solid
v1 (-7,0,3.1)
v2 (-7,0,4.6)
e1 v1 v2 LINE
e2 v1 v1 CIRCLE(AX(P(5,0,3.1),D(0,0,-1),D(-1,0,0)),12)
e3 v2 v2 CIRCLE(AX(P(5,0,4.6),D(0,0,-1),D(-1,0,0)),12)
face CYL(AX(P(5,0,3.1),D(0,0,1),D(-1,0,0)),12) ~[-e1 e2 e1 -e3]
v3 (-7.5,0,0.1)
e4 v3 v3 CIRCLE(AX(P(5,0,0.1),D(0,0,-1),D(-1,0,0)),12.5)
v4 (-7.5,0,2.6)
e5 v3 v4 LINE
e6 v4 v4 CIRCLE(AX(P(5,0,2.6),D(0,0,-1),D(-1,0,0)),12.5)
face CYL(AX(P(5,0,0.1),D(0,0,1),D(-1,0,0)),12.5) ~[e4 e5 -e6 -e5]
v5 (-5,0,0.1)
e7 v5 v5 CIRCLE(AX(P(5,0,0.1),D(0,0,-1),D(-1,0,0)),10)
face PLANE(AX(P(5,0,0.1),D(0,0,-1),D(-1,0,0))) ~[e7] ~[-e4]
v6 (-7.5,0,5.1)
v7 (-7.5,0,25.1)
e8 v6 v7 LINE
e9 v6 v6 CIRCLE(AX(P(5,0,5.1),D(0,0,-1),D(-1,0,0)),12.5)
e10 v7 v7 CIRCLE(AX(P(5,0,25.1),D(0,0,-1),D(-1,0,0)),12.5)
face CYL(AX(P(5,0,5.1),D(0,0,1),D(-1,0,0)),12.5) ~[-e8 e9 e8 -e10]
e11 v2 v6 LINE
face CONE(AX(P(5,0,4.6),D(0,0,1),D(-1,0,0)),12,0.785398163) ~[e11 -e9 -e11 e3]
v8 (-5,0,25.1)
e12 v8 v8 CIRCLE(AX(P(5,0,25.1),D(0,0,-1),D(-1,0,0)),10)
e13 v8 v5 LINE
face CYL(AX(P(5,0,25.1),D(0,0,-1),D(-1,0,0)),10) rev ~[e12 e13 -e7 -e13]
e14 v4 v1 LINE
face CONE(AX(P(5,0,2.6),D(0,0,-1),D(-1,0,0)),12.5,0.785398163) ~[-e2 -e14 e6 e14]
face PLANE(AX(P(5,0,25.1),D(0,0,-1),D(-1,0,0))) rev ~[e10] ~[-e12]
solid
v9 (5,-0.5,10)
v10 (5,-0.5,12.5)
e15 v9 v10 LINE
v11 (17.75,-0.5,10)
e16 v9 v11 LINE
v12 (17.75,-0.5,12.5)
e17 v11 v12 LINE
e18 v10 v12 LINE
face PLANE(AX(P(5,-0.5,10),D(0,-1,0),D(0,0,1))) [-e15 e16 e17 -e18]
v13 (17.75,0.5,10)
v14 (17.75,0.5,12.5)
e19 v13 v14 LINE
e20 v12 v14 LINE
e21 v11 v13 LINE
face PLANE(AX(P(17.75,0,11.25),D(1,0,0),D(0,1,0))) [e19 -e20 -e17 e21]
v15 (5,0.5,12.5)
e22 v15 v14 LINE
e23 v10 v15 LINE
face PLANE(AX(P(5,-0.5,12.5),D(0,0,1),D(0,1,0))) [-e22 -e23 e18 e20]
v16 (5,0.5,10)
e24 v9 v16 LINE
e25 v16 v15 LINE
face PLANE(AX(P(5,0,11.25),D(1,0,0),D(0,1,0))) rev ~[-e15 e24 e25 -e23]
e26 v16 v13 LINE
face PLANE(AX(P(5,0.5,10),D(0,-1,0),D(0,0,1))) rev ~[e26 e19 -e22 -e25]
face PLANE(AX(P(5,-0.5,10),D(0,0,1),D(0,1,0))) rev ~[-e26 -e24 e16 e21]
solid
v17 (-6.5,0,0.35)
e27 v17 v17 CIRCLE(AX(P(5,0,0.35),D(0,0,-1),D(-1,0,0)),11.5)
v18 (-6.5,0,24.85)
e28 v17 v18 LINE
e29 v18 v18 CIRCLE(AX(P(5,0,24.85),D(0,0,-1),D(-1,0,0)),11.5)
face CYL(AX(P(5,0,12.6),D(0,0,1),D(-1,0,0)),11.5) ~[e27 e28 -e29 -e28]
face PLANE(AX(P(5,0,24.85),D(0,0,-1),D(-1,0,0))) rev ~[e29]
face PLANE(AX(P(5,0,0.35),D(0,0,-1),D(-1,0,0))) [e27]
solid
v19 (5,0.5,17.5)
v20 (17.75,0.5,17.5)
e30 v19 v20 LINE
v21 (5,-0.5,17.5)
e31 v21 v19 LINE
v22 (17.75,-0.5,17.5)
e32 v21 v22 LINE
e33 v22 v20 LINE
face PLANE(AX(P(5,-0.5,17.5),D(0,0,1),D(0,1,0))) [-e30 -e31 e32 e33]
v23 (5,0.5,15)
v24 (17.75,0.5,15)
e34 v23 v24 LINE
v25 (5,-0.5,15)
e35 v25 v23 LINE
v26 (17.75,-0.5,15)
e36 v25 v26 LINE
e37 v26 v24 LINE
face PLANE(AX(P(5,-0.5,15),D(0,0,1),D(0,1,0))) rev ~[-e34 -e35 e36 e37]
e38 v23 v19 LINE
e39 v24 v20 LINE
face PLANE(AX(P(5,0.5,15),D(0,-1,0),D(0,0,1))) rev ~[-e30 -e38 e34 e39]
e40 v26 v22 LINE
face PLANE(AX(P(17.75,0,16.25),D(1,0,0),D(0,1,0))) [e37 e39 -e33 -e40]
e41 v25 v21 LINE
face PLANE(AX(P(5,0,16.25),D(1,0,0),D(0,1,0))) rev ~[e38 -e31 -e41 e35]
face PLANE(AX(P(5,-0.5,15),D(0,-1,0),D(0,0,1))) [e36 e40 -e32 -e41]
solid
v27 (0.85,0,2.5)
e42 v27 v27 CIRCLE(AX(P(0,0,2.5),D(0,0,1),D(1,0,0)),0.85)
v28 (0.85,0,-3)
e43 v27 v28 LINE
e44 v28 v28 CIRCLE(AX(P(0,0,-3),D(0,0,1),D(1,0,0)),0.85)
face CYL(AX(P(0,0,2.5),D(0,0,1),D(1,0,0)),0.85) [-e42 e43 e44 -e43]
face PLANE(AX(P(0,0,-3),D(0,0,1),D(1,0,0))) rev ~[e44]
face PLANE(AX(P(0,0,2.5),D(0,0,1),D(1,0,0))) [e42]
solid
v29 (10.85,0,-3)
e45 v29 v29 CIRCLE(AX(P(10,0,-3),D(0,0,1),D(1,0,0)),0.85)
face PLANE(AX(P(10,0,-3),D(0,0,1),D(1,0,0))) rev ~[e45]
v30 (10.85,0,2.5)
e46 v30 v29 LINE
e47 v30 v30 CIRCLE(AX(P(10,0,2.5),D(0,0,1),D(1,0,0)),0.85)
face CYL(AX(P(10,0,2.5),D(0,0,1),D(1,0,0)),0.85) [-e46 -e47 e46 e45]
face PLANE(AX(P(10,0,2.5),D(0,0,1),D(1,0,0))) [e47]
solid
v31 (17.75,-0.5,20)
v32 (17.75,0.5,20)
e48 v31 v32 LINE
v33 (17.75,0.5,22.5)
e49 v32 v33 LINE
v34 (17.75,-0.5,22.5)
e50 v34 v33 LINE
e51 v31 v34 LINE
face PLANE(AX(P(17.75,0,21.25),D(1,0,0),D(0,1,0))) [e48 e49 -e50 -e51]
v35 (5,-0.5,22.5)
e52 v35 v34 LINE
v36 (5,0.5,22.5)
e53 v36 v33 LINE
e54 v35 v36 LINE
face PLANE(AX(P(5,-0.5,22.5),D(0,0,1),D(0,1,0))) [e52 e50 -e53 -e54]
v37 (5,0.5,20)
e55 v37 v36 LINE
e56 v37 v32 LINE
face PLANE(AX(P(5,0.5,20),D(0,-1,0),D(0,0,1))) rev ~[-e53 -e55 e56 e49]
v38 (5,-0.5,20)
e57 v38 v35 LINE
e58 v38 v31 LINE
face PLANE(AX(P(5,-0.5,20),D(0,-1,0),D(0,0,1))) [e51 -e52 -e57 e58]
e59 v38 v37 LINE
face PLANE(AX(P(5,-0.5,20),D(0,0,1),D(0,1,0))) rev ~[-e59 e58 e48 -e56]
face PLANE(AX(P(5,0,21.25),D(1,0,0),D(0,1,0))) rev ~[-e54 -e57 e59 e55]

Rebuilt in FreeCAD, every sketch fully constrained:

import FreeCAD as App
import Part
import Sketcher
from FreeCAD import Vector

doc = App.newDocument("Part")
body = doc.addObject("PartDesign::Body", "Body")

# Sketch on XZ plane
sketch1 = doc.addObject("Sketcher::SketchObject", "Sketch")
body.addObject(sketch1)
sketch1.AttachmentSupport = (doc.XZ_Plane, [""])
sketch1.MapMode = "FlatFace"
sketch1.addGeometry([
    Part.LineSegment(Vector(-7.5, 2.6, 0), Vector(-7.5, 0.1, 0)),  # 0
    Part.LineSegment(Vector(-7.5, 0.1, 0), Vector(-5, 0.1, 0)),  # 1
    Part.LineSegment(Vector(-5, 0.1, 0), Vector(-5, 25.1, 0)),  # 2
    Part.LineSegment(Vector(-5, 25.1, 0), Vector(-7.5, 25.1, 0)),  # 3
    Part.LineSegment(Vector(-7.5, 25.1, 0), Vector(-7.5, 5.1, 0)),  # 4
    Part.LineSegment(Vector(-7.5, 5.1, 0), Vector(-7, 4.6, 0)),  # 5
    Part.LineSegment(Vector(-7, 4.6, 0), Vector(-7, 3.1, 0)),  # 6
    Part.LineSegment(Vector(-7, 3.1, 0), Vector(-7.5, 2.6, 0)),  # 7
], False)
sketch1.addGeometry(Part.LineSegment(Vector(5, 25.1, 0), Vector(5, 0.1, 0)), True)  # axis
sketch1.addConstraint([
    Sketcher.Constraint("Coincident", 0, 2, 1, 1),
    Sketcher.Constraint("Coincident", 1, 2, 2, 1),
    Sketcher.Constraint("Coincident", 2, 2, 3, 1),
    Sketcher.Constraint("Coincident", 3, 2, 4, 1),
    Sketcher.Constraint("Coincident", 4, 2, 5, 1),
    Sketcher.Constraint("Coincident", 5, 2, 6, 1),
    Sketcher.Constraint("Coincident", 6, 2, 7, 1),
    Sketcher.Constraint("Coincident", 7, 2, 0, 1),
    Sketcher.Constraint("Vertical", 0),
    Sketcher.Constraint("Horizontal", 1),
    Sketcher.Constraint("Vertical", 2),
    Sketcher.Constraint("Horizontal", 3),
    Sketcher.Constraint("Vertical", 4),
    Sketcher.Constraint("Vertical", 6),
    Sketcher.Constraint("Vertical", 8),
    Sketcher.Constraint("Symmetric", 2, 2, 8, 1, -2),
    Sketcher.Constraint("Perpendicular", 5, 7),
    Sketcher.Constraint("Horizontal", 1, 2, 8, 2),
    Sketcher.Constraint("Vertical", 0, 2, 3, 2),
    Sketcher.Constraint("Equal", 3, 0),
    Sketcher.Constraint("Equal", 5, 7),
    Sketcher.Constraint("DistanceY", 2, 1, 2, 2, 25.0),
    Sketcher.Constraint("DistanceY", 4, 2, 4, 1, 20.0),
    Sketcher.Constraint("DistanceX", 1, 1, 1, 2, 2.5),
    Sketcher.Constraint("DistanceY", 6, 2, 6, 1, 1.5),
    Sketcher.Constraint("DistanceX", 1, 2, -1, 1, 5.0),
    Sketcher.Constraint("DistanceY", -1, 1, 0, 2, 0.1),
])
revolution = doc.addObject("PartDesign::Revolution", "Revolution")
body.addObject(revolution)
revolution.Profile = sketch1
revolution.ReferenceAxis = (sketch1, ["Axis0"])
revolution.Angle = 360
body2 = doc.addObject("PartDesign::Body", "Body001")

# Sketch on XZ plane
sketch2 = doc.addObject("Sketcher::SketchObject", "Sketch001")
body2.addObject(sketch2)
sketch2.AttachmentSupport = (doc.getObject("XZ_Plane001"), [""])
sketch2.MapMode = "FlatFace"
sketch2.addGeometry([
    Part.LineSegment(Vector(-6, 25, 0), Vector(-6, 0, 0)),
    Part.LineSegment(Vector(-6, 0, 0), Vector(5, 0, 0)),
    Part.LineSegment(Vector(5, 0, 0), Vector(5, 25, 0)),
    Part.LineSegment(Vector(5, 25, 0), Vector(-6, 25, 0)),
], False)
sketch2.addGeometry(Part.LineSegment(Vector(5, 25, 0), Vector(5, 0, 0)), True)  # axis
sketch2.addConstraint([
    Sketcher.Constraint("Coincident", 0, 2, 1, 1),
    Sketcher.Constraint("Coincident", 1, 2, 2, 1),
    Sketcher.Constraint("Coincident", 2, 2, 3, 1),
    Sketcher.Constraint("Coincident", 3, 2, 0, 1),
    Sketcher.Constraint("Vertical", 0),
    Sketcher.Constraint("Horizontal", 1),
    Sketcher.Constraint("Vertical", 2),
    Sketcher.Constraint("Horizontal", 3),
    Sketcher.Constraint("Vertical", 4),
    Sketcher.Constraint("Coincident", 4, 1, 2, 2),
    Sketcher.Constraint("Horizontal", 0, 2, 4, 2),
    Sketcher.Constraint("DistanceX", 1, 1, 1, 2, 11.5),
    Sketcher.Constraint("DistanceY", 0, 2, 0, 1, 24.5),
    Sketcher.Constraint("DistanceX", -1, 1, 1, 2, 5.0),
    Sketcher.Constraint("DistanceY", -1, 1, 0, 2, 0.35),
])
revolution2 = doc.addObject("PartDesign::Revolution", "Revolution001")
body2.addObject(revolution2)
revolution2.Profile = sketch2
revolution2.ReferenceAxis = (sketch2, ["Axis0"])
revolution2.Angle = 360
body3 = doc.addObject("PartDesign::Body", "Body002")
body3.AllowCompound = True

# Sketch on XY plane
sketch3 = doc.addObject("Sketcher::SketchObject", "Sketch002")
body3.addObject(sketch3)
sketch3.AttachmentSupport = (doc.getObject("XY_Plane002"), [""])
sketch3.MapMode = "FlatFace"
sketch3.AttachmentOffset = App.Placement(Vector(0, 0, 2.5), App.Rotation())
sketch3.addGeometry([
    Part.Circle(Vector(0, 0, 0), Vector(0, 0, 1), 0.8),
    Part.Circle(Vector(10, 0, 0), Vector(0, 0, 1), 0.8),
], False)
sketch3.addConstraint([
    Sketcher.Constraint("Coincident", 0, 3, -1, 1),
    Sketcher.Constraint("Equal", 0, 1),
    Sketcher.Constraint("PointOnObject", 1, 3, -1),
    Sketcher.Constraint("Diameter", 0, 1.7),
    Sketcher.Constraint("DistanceX", -1, 1, 1, 3, 10.0),
])
pad1 = doc.addObject("PartDesign::Pad", "Pad")
body3.addObject(pad1)
pad1.Profile = sketch3
pad1.Length = 5.5
pad1.Reversed = True
body4 = doc.addObject("PartDesign::Body", "Body003")
body4.AllowCompound = True

# Sketch on YZ plane
sketch4 = doc.addObject("Sketcher::SketchObject", "Sketch003")
body4.addObject(sketch4)
sketch4.AttachmentSupport = (doc.getObject("YZ_Plane003"), [""])
sketch4.MapMode = "FlatFace"
sketch4.AttachmentOffset = App.Placement(Vector(0, 0, 5), App.Rotation())
sketch4.addGeometry([
    Part.LineSegment(Vector(-0.5, 12.5, 0), Vector(-0.5, 10, 0)),  # 0
    Part.LineSegment(Vector(-0.5, 10, 0), Vector(0.5, 10, 0)),  # 1
    Part.LineSegment(Vector(0.5, 10, 0), Vector(0.5, 12.5, 0)),  # 2
    Part.LineSegment(Vector(0.5, 12.5, 0), Vector(-0.5, 12.5, 0)),  # 3
    Part.LineSegment(Vector(-0.5, 17.5, 0), Vector(-0.5, 15, 0)),  # 4
    Part.LineSegment(Vector(-0.5, 15, 0), Vector(0.5, 15, 0)),  # 5
    Part.LineSegment(Vector(0.5, 15, 0), Vector(0.5, 17.5, 0)),  # 6
    Part.LineSegment(Vector(0.5, 17.5, 0), Vector(-0.5, 17.5, 0)),  # 7
    Part.LineSegment(Vector(-0.5, 22.5, 0), Vector(-0.5, 20, 0)),  # 8
    Part.LineSegment(Vector(-0.5, 20, 0), Vector(0.5, 20, 0)),  # 9
    Part.LineSegment(Vector(0.5, 20, 0), Vector(0.5, 22.5, 0)),  # 10
    Part.LineSegment(Vector(0.5, 22.5, 0), Vector(-0.5, 22.5, 0)),  # 11
], False)
sketch4.addConstraint([
    Sketcher.Constraint("Coincident", 0, 2, 1, 1),
    Sketcher.Constraint("Coincident", 1, 2, 2, 1),
    Sketcher.Constraint("Coincident", 2, 2, 3, 1),
    Sketcher.Constraint("Coincident", 3, 2, 0, 1),
    Sketcher.Constraint("Coincident", 4, 2, 5, 1),
    Sketcher.Constraint("Coincident", 5, 2, 6, 1),
    Sketcher.Constraint("Coincident", 6, 2, 7, 1),
    Sketcher.Constraint("Coincident", 7, 2, 4, 1),
    Sketcher.Constraint("Coincident", 8, 2, 9, 1),
    Sketcher.Constraint("Coincident", 9, 2, 10, 1),
    Sketcher.Constraint("Coincident", 10, 2, 11, 1),
    Sketcher.Constraint("Coincident", 11, 2, 8, 1),
    Sketcher.Constraint("Vertical", 0),
    Sketcher.Constraint("Horizontal", 1),
    Sketcher.Constraint("Vertical", 2),
    Sketcher.Constraint("Horizontal", 3),
    Sketcher.Constraint("Vertical", 4),
    Sketcher.Constraint("Horizontal", 5),
    Sketcher.Constraint("Vertical", 6),
    Sketcher.Constraint("Horizontal", 7),
    Sketcher.Constraint("Vertical", 8),
    Sketcher.Constraint("Horizontal", 9),
    Sketcher.Constraint("Vertical", 10),
    Sketcher.Constraint("Horizontal", 11),
    Sketcher.Constraint("Vertical", 3, 2, 4, 2),
    Sketcher.Constraint("Vertical", 2, 2, 5, 2),
    Sketcher.Constraint("Vertical", 7, 2, 8, 2),
    Sketcher.Constraint("Vertical", 6, 2, 9, 2),
    Sketcher.Constraint("Equal", 2, 4),
    Sketcher.Constraint("Equal", 6, 8),
    Sketcher.Constraint("DistanceX", 1, 1, 1, 2, 1.0),
    Sketcher.Constraint("DistanceY", 0, 2, 0, 1, 2.5),
    Sketcher.Constraint("DistanceY", -1, 1, 0, 2, 10.0),
    Sketcher.Constraint("DistanceY", -1, 1, 4, 2, 15.0),
    Sketcher.Constraint("DistanceY", -1, 1, 8, 2, 20.0),
    Sketcher.Constraint("DistanceX", 0, 2, -1, 1, 0.5),
])
pad2 = doc.addObject("PartDesign::Pad", "Pad001")
body4.addObject(pad2)
pad2.Profile = sketch4
pad2.Length = 12.75

doc.recompute()
